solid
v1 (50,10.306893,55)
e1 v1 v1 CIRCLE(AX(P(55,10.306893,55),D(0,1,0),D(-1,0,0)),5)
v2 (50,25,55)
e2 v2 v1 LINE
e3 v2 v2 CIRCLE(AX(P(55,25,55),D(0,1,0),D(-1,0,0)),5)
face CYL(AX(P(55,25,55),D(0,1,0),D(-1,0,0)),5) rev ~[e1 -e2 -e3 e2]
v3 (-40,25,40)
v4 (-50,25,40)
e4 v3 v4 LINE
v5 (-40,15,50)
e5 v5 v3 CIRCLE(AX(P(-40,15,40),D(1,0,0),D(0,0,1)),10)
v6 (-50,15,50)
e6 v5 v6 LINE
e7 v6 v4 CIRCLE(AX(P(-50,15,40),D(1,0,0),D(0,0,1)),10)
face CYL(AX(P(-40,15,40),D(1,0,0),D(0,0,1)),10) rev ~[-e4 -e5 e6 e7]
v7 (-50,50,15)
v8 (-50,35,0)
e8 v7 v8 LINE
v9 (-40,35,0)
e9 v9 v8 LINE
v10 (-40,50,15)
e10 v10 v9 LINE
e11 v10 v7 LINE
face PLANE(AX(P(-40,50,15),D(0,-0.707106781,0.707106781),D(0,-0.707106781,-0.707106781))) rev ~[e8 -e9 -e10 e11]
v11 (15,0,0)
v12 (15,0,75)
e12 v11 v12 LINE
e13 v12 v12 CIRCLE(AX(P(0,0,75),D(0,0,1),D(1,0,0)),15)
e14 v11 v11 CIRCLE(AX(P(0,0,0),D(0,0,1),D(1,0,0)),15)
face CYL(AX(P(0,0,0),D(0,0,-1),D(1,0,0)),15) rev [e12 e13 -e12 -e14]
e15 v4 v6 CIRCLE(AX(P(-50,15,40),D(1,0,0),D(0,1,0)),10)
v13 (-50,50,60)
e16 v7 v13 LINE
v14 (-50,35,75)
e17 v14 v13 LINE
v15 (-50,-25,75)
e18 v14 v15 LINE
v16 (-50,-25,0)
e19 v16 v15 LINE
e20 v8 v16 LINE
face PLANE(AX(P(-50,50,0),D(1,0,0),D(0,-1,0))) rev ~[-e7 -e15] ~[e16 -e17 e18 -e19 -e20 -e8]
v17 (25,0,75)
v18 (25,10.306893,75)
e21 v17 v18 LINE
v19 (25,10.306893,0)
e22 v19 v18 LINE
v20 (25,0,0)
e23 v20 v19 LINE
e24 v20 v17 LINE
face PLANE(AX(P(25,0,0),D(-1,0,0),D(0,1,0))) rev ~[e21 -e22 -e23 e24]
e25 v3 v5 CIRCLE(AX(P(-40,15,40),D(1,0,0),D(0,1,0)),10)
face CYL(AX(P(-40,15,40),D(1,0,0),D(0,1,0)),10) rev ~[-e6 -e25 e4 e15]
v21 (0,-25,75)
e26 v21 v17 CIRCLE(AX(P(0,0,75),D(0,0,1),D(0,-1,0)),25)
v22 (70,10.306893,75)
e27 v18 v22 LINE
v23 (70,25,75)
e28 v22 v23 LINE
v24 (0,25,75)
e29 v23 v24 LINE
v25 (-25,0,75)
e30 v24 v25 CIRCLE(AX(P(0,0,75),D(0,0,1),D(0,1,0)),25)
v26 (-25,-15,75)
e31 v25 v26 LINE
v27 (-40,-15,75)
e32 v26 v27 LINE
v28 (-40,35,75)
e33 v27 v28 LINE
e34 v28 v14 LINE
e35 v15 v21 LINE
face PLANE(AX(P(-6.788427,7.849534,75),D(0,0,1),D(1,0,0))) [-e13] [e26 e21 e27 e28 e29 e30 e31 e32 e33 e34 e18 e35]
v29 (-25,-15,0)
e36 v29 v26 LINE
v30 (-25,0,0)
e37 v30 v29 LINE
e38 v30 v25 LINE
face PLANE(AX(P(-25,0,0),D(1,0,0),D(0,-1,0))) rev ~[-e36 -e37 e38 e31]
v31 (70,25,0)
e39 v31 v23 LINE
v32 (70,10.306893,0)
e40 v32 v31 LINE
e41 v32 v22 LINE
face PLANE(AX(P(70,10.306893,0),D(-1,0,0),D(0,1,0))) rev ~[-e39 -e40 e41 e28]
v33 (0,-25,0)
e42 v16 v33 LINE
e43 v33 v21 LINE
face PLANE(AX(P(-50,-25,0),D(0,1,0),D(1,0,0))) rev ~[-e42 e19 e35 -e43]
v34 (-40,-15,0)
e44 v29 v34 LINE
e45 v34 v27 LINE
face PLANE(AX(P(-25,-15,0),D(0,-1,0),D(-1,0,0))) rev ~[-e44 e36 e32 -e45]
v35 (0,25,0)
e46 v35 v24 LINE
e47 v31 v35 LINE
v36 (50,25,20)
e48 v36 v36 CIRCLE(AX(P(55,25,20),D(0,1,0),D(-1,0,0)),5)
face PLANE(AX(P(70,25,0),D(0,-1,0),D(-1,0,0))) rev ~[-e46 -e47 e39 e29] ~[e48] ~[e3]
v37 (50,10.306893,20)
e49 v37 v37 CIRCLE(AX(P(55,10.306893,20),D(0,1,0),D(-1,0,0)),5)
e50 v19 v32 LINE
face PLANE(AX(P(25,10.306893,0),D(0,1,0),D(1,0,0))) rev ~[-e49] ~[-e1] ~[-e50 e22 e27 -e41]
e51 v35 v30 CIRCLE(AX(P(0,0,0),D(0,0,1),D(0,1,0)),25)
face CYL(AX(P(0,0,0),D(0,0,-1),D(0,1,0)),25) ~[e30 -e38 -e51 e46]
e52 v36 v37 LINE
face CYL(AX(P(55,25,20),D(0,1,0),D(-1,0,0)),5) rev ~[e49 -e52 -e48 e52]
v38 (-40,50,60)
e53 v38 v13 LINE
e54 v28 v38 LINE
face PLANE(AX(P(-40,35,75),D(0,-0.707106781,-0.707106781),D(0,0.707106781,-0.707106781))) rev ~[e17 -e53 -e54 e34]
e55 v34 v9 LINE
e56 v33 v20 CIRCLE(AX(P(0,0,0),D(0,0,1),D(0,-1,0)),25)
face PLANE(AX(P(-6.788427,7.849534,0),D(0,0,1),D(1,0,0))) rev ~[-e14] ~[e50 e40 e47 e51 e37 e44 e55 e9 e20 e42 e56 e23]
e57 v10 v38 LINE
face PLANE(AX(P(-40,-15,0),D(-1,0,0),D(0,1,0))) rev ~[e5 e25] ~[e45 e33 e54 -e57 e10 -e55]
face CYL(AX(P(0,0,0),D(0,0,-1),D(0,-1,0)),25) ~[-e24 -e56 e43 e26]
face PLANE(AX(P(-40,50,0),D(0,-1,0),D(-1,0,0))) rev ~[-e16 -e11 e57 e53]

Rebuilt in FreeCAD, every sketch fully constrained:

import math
import FreeCAD as App
import Part
import Sketcher

doc = App.newDocument("Part")
body = doc.addObject("PartDesign::Body", "Body")

# Sketch on XY plane
sketch1 = body.newObject("Sketcher::SketchObject", "Sketch")
sketch1.AttachmentSupport = (doc.getObject("XY_Plane"), [""])
sketch1.MapMode = "FlatFace"
sketch1.addGeometry([
    Part.LineSegment(App.Vector(-50, -25, 0), App.Vector(0, -25, 0)),  # 0
    Part.ArcOfCircle(Part.Circle(App.Vector(0, 0, 0), App.Vector(0, 0, 1), 25), math.radians(-90), math.radians(0)),  # 1
    Part.LineSegment(App.Vector(25, 0, 0), App.Vector(25, 10, 0)),  # 2
    Part.LineSegment(App.Vector(25, 10, 0), App.Vector(70, 10, 0)),  # 3
    Part.LineSegment(App.Vector(70, 10, 0), App.Vector(70, 25, 0)),  # 4
    Part.LineSegment(App.Vector(70, 25, 0), App.Vector(0, 25, 0)),  # 5
    Part.ArcOfCircle(Part.Circle(App.Vector(0, 0, 0), App.Vector(0, 0, 1), 25), math.radians(90), math.radians(180)),  # 6
    Part.LineSegment(App.Vector(-25, 0, 0), App.Vector(-25, -15, 0)),  # 7
    Part.LineSegment(App.Vector(-25, -15, 0), App.Vector(-40, -15, 0)),  # 8
    Part.LineSegment(App.Vector(-40, -15, 0), App.Vector(-40, 50, 0)),  # 9
    Part.LineSegment(App.Vector(-40, 50, 0), App.Vector(-50, 50, 0)),  # 10
    Part.LineSegment(App.Vector(-50, 50, 0), App.Vector(-50, -25, 0)),  # 11
    Part.Circle(App.Vector(0, 0, 0), App.Vector(0, 0, 1), 15),  # 12
], False)
sketch1.addConstraint([
    Sketcher.Constraint("Tangent", 0, 2, 1, 1),
    Sketcher.Constraint("Tangent", 1, 2, 2, 1),
    Sketcher.Constraint("Coincident", 2, 2, 3, 1),
    Sketcher.Constraint("Coincident", 3, 2, 4, 1),
    Sketcher.Constraint("Coincident", 4, 2, 5, 1),
    Sketcher.Constraint("Tangent", 5, 2, 6, 1),
    Sketcher.Constraint("Tangent", 6, 2, 7, 1),
    Sketcher.Constraint("Coincident", 7, 2, 8, 1),
    Sketcher.Constraint("Coincident", 8, 2, 9, 1),
    Sketcher.Constraint("Coincident", 9, 2, 10, 1),
    Sketcher.Constraint("Coincident", 10, 2, 11, 1),
    Sketcher.Constraint("Coincident", 11, 2, 0, 1),
    Sketcher.Constraint("Horizontal", 0),
    Sketcher.Constraint("Vertical", 2),
    Sketcher.Constraint("Horizontal", 3),
    Sketcher.Constraint("Vertical", 4),
    Sketcher.Constraint("Horizontal", 5),
    Sketcher.Constraint("Vertical", 7),
    Sketcher.Constraint("Horizontal", 8),
    Sketcher.Constraint("Vertical", 9),
    Sketcher.Constraint("Horizontal", 10),
    Sketcher.Constraint("Vertical", 11),
    Sketcher.Constraint("Coincident", 1, 3, -1, 1),
    Sketcher.Constraint("Coincident", 6, 3, -1, 1),
    Sketcher.Constraint("Coincident", 12, 3, -1, 1),
    Sketcher.Constraint("Equal", 1, 6),
    Sketcher.Constraint("Equal", 8, 7),
    Sketcher.Constraint("Diameter", 12, 30.0),
    Sketcher.Constraint("Radius", 1, 25.0),
    Sketcher.Constraint("DistanceX", 0, 1, 0, 2, 50.0),
    Sketcher.Constraint("DistanceX", 3, 1, 3, 2, 45.0),
    Sketcher.Constraint("DistanceX", 8, 2, 8, 1, 15.0),
    Sketcher.Constraint("DistanceY", 9, 1, 9, 2, 65.0),
    Sketcher.Constraint("DistanceY", 2, 1, 2, 2, 10.306893),
])
pad1 = body.newObject("PartDesign::Pad", "Pad")
pad1.Profile = sketch1
pad1.Length = 75

# Sketch on XZ plane
sketch2 = body.newObject("Sketcher::SketchObject", "Sketch001")
sketch2.AttachmentSupport = (doc.getObject("XZ_Plane"), [""])
sketch2.MapMode = "FlatFace"
sketch2.AttachmentOffset = App.Placement(App.Vector(0, 0, -25), App.Rotation())
sketch2.addGeometry([
    Part.Circle(App.Vector(55, 20, 0), App.Vector(0, 0, 1), 5),
    Part.Circle(App.Vector(55, 55, 0), App.Vector(0, 0, 1), 5),
], False)
sketch2.addConstraint([
    Sketcher.Constraint("Equal", 0, 1),
    Sketcher.Constraint("Vertical", 0, 3, 1, 3),
    Sketcher.Constraint("Diameter", 0, 10.0),
    Sketcher.Constraint("DistanceX", -1, 1, 0, 3, 55.0),
    Sketcher.Constraint("DistanceY", -1, 1, 0, 3, 20.0),
    Sketcher.Constraint("DistanceY", -1, 1, 1, 3, 55.0),
])
pocket1 = body.newObject("PartDesign::Pocket", "Pocket")
pocket1.Profile = sketch2
pocket1.Length = 15
pocket1.Reversed = True

# Sketch on YZ plane
sketch3 = body.newObject("Sketcher::SketchObject", "Sketch002")
sketch3.AttachmentSupport = (doc.getObject("YZ_Plane"), [""])
sketch3.MapMode = "FlatFace"
sketch3.AttachmentOffset = App.Placement(App.Vector(0, 0, -40), App.Rotation())
sketch3.addGeometry([
    Part.ArcOfCircle(Part.Circle(App.Vector(15, 40, 0), App.Vector(0, 0, 1), 10), math.radians(0), math.radians(90)),
    Part.ArcOfCircle(Part.Circle(App.Vector(15, 40, 0), App.Vector(0, 0, 1), 10), math.radians(90), math.radians(360)),
], False)
sketch3.addConstraint([
    Sketcher.Constraint("Tangent", 0, 1, 1, 2),
    Sketcher.Constraint("Coincident", 1, 1, 0, 2),
    Sketcher.Constraint("Horizontal", 1, 3, 0, 1),
    Sketcher.Constraint("Vertical", 0, 3, 1, 1),
    Sketcher.Constraint("Radius", 0, 10.0),
    Sketcher.Constraint("DistanceX", -1, 1, 0, 3, 15.0),
    Sketcher.Constraint("DistanceY", -1, 1, 0, 3, 40.0),
])
pocket2 = body.newObject("PartDesign::Pocket", "Pocket001")
pocket2.Profile = sketch3
pocket2.Length = 10

# Sketch on YZ plane
sketch4 = body.newObject("Sketcher::SketchObject", "Sketch003")
sketch4.AttachmentSupport = (doc.getObject("YZ_Plane"), [""])
sketch4.MapMode = "FlatFace"
sketch4.AttachmentOffset = App.Placement(App.Vector(0, 0, -40), App.Rotation())
sketch4.addGeometry([
    Part.LineSegment(App.Vector(35, 75, 0), App.Vector(50, 60, 0)),  # 0
    Part.LineSegment(App.Vector(50, 60, 0), App.Vector(50, 75, 0)),  # 1
    Part.LineSegment(App.Vector(50, 75, 0), App.Vector(35, 75, 0)),  # 2
    Part.LineSegment(App.Vector(50, 0, 0), App.Vector(50, 15, 0)),  # 3
    Part.LineSegment(App.Vector(50, 15, 0), App.Vector(35, 0, 0)),  # 4
    Part.LineSegment(App.Vector(35, 0, 0), App.Vector(50, 0, 0)),  # 5
], False)
sketch4.addConstraint([
    Sketcher.Constraint("Coincident", 0, 2, 1, 1),
    Sketcher.Constraint("Coincident", 1, 2, 2, 1),
    Sketcher.Constraint("Coincident", 2, 2, 0, 1),
    Sketcher.Constraint("Coincident", 3, 2, 4, 1),
    Sketcher.Constraint("Coincident", 4, 2, 5, 1),
    Sketcher.Constraint("Coincident", 5, 2, 3, 1),
    Sketcher.Constraint("Vertical", 1),
    Sketcher.Constraint("Horizontal", 2),
    Sketcher.Constraint("Vertical", 3),
    Sketcher.Constraint("Horizontal", 5),
    Sketcher.Constraint("PointOnObject", 4, 2, -1),
    Sketcher.Constraint("Perpendicular", 0, 4),
    Sketcher.Constraint("Vertical", 1, 2, 3, 2),
    Sketcher.Constraint("Vertical", 2, 2, 4, 2),
    Sketcher.Constraint("Equal", 5, 1),
    Sketcher.Constraint("DistanceX", 2, 2, 2, 1, 15.0),
    Sketcher.Constraint("DistanceX", -1, 1, 0, 2, 50.0),
    Sketcher.Constraint("DistanceY", -1, 1, 0, 2, 60.0),
])
pocket3 = body.newObject("PartDesign::Pocket", "Pocket002")
pocket3.Profile = sketch4
pocket3.Length = 10

doc.recompute()
